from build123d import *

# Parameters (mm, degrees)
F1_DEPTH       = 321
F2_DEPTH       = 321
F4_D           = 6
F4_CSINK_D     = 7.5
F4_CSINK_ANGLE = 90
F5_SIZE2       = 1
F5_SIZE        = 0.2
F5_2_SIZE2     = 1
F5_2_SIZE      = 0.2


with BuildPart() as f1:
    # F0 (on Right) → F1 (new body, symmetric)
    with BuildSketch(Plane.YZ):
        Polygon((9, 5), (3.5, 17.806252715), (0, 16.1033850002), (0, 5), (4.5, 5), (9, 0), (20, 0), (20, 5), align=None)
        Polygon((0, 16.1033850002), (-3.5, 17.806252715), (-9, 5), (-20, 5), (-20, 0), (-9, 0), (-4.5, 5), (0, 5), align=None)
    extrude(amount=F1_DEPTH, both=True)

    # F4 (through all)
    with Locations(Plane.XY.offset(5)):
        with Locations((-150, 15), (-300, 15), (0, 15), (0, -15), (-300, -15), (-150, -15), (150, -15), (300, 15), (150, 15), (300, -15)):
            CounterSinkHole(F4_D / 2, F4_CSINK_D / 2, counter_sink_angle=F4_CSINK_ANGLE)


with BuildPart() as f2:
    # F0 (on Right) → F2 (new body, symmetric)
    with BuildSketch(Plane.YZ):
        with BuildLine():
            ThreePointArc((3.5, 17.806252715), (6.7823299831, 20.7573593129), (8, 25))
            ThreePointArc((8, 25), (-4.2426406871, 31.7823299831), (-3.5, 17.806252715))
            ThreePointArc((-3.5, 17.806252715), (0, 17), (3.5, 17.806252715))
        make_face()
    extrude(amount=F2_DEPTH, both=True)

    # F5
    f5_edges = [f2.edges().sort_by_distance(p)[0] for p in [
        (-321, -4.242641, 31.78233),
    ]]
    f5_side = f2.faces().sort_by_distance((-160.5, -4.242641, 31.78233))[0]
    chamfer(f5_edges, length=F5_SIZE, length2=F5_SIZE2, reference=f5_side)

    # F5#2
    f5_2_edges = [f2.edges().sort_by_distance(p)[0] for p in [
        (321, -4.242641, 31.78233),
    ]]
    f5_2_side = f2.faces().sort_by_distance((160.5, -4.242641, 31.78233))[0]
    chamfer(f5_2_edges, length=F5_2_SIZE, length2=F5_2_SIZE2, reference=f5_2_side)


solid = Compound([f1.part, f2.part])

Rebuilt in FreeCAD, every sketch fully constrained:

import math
import FreeCAD as App
import Part
import Sketcher


def edges_at(feature, points):
    """Names of the edges that pass closest to the given points."""
    edges = feature.Shape.Edges
    near = lambda p: min(range(len(edges)), key=lambda i: edges[i].distToShape(Part.Vertex(*p))[0])
    return sorted({f"Edge{near(p) + 1}" for p in points})

doc = App.newDocument("Part")
params = doc.addObject("Spreadsheet::Sheet", "Params")
for row, (alias, value) in enumerate([
    ("sketch1_width", "11 mm"),
    ("sketch1_width2", "9 mm"),
    ("sketch1_height", "5 mm"),
    ("pad1_length", "642 mm"),
    ("sketch2_diameter", "6 mm"),
    ("hole_diameter", "6 mm"),
    ("hole_csink_diameter", "7.5 mm"),
    ("sketch3_radius", "8 mm"),
    ("pad2_length", "642 mm"),
    ("chamfer_size", "0.2 mm"),
    ("chamfer_size2", "1 mm"),
    ("chamfer2_size", "0.2 mm"),
    ("chamfer2_size2", "1 mm"),
], start=1):
    params.set(f"A{row}", alias)
    params.set(f"B{row}", "=" + value)
    params.setAlias(f"B{row}", alias)

body = doc.addObject("PartDesign::Body", "Body")

# Sketch on YZ plane
sketch1 = doc.addObject("Sketcher::SketchObject", "Sketch")
body.addObject(sketch1)
sketch1.AttachmentSupport = (doc.YZ_Plane, [""])
sketch1.MapMode = "FlatFace"
sketch1.addGeometry([
    Part.LineSegment(App.Vector(9, 5, 0), App.Vector(3.5, 17.8, 0)),  # 0
    Part.LineSegment(App.Vector(3.5, 17.8, 0), App.Vector(0, 16.1, 0)),  # 1
    Part.LineSegment(App.Vector(0, 16.1, 0), App.Vector(-3.5, 17.8, 0)),  # 2
    Part.LineSegment(App.Vector(-3.5, 17.8, 0), App.Vector(-9, 5, 0)),  # 3
    Part.LineSegment(App.Vector(-9, 5, 0), App.Vector(-20, 5, 0)),  # 4
    Part.LineSegment(App.Vector(-20, 5, 0), App.Vector(-20, 0, 0)),  # 5
    Part.LineSegment(App.Vector(-20, 0, 0), App.Vector(-9, 0, 0)),  # 6
    Part.LineSegment(App.Vector(-9, 0, 0), App.Vector(-4.5, 5, 0)),  # 7
    Part.LineSegment(App.Vector(-4.5, 5, 0), App.Vector(4.5, 5, 0)),  # 8
    Part.LineSegment(App.Vector(4.5, 5, 0), App.Vector(9, 0, 0)),  # 9
    Part.LineSegment(App.Vector(9, 0, 0), App.Vector(20, 0, 0)),  # 10
    Part.LineSegment(App.Vector(20, 0, 0), App.Vector(20, 5, 0)),  # 11
    Part.LineSegment(App.Vector(20, 5, 0), App.Vector(9, 5, 0)),  # 12
], False)
sketch1.addConstraint([
    Sketcher.Constraint("Coincident", 0, 2, 1, 1),
    Sketcher.Constraint("Coincident", 1, 2, 2, 1),
    Sketcher.Constraint("Coincident", 2, 2, 3, 1),
    Sketcher.Constraint("Coincident", 3, 2, 4, 1),
    Sketcher.Constraint("Coincident", 4, 2, 5, 1),
    Sketcher.Constraint("Coincident", 5, 2, 6, 1),
    Sketcher.Constraint("Coincident", 6, 2, 7, 1),
    Sketcher.Constraint("Coincident", 7, 2, 8, 1),
    Sketcher.Constraint("Coincident", 8, 2, 9, 1),
    Sketcher.Constraint("Coincident", 9, 2, 10, 1),
    Sketcher.Constraint("Coincident", 10, 2, 11, 1),
    Sketcher.Constraint("Coincident", 11, 2, 12, 1),
    Sketcher.Constraint("Coincident", 12, 2, 0, 1),
    Sketcher.Constraint("Horizontal", 4),
    Sketcher.Constraint("Vertical", 5),
    Sketcher.Constraint("Horizontal", 6),
    Sketcher.Constraint("Horizontal", 8),
    Sketcher.Constraint("Horizontal", 10),
    Sketcher.Constraint("Vertical", 11),
    Sketcher.Constraint("Horizontal", 12),
    Sketcher.Constraint("Symmetric", 6, 2, 9, 2, -1, 1),
    Sketcher.Constraint("Symmetric", 0, 2, 2, 2, -2),
    Sketcher.Constraint("Symmetric", 5, 2, 10, 2, -2),
    Sketcher.Constraint("Symmetric", 3, 2, 12, 2, -2),
    Sketcher.Constraint("PointOnObject", 1, 2, -2),
    Sketcher.Constraint("Horizontal", 4, 2, 7, 2),
    Sketcher.Constraint("Vertical", 3, 2, 6, 2),
    Sketcher.Constraint("Equal", 7, 9),
    Sketcher.Constraint("DistanceX", 4, 2, 4, 1, 11.0),
    Sketcher.Constraint("DistanceX", 8, 1, 8, 2, 9.0),
    Sketcher.Constraint("DistanceY", 5, 2, 5, 1, 5.0),
    Sketcher.Constraint("DistanceX", 3, 2, -1, 1, 9.0),
    Sketcher.Constraint("DistanceX", 2, 2, 0, 2, 7.0),
    Sketcher.Constraint("Distance", 1, 3.892269),
    Sketcher.Constraint("Distance", 0, 13.937364),
])
sketch1.setExpression("Constraints[28]", "Params.sketch1_width")
sketch1.setExpression("Constraints[29]", "Params.sketch1_width2")
sketch1.setExpression("Constraints[30]", "Params.sketch1_height")
pad1 = doc.addObject("PartDesign::Pad", "Pad")
body.addObject(pad1)
pad1.Profile = sketch1
pad1.setExpression("Length", "Params.pad1_length")
pad1.Midplane = True

# Sketch on XY plane
sketch2 = doc.addObject("Sketcher::SketchObject", "Sketch001")
body.addObject(sketch2)
sketch2.AttachmentSupport = (doc.XY_Plane, [""])
sketch2.MapMode = "FlatFace"
sketch2.AttachmentOffset = App.Placement(App.Vector(0, 0, 5), App.Rotation())
sketch2.addGeometry([
    Part.Circle(App.Vector(-150, 15, 0), App.Vector(0, 0, 1), 3),  # 0
    Part.Circle(App.Vector(-300, 15, 0), App.Vector(0, 0, 1), 3),  # 1
    Part.Circle(App.Vector(0, 15, 0), App.Vector(0, 0, 1), 3),  # 2
    Part.Circle(App.Vector(0, -15, 0), App.Vector(0, 0, 1), 3),  # 3
    Part.Circle(App.Vector(-300, -15, 0), App.Vector(0, 0, 1), 3),  # 4
    Part.Circle(App.Vector(-150, -15, 0), App.Vector(0, 0, 1), 3),  # 5
    Part.Circle(App.Vector(150, -15, 0), App.Vector(0, 0, 1), 3),  # 6
    Part.Circle(App.Vector(300, 15, 0), App.Vector(0, 0, 1), 3),  # 7
    Part.Circle(App.Vector(150, 15, 0), App.Vector(0, 0, 1), 3),  # 8
    Part.Circle(App.Vector(300, -15, 0), App.Vector(0, 0, 1), 3),  # 9
], False)
sketch2.addConstraint([
    Sketcher.Constraint("Equal", 0, 1),
    Sketcher.Constraint("Equal", 1, 2),
    Sketcher.Constraint("Equal", 2, 3),
    Sketcher.Constraint("Equal", 3, 4),
    Sketcher.Constraint("Equal", 4, 5),
    Sketcher.Constraint("Equal", 5, 6),
    Sketcher.Constraint("Equal", 6, 7),
    Sketcher.Constraint("Equal", 7, 8),
    Sketcher.Constraint("Equal", 8, 9),
    Sketcher.Constraint("Symmetric", 2, 3, 3, 3, -1, 1),
    Sketcher.Constraint("Symmetric", 0, 3, 6, 3, -1, 1),
    Sketcher.Constraint("Symmetric", 4, 3, 7, 3, -1, 1),
    Sketcher.Constraint("Symmetric", 5, 3, 8, 3, -1, 1),
    Sketcher.Constraint("Symmetric", 1, 3, 9, 3, -1, 1),
    Sketcher.Constraint("Symmetric", 5, 3, 6, 3, -2),
    Sketcher.Constraint("Symmetric", 1, 3, 7, 3, -2),
    Sketcher.Constraint("PointOnObject", 2, 3, -2),
    Sketcher.Constraint("Horizontal", 0, 3, 1, 3),
    Sketcher.Constraint("Horizontal", 1, 3, 2, 3),
    Sketcher.Constraint("Diameter", 0, 6.0),
    Sketcher.Constraint("DistanceX", 0, 3, -1, 1, 150.0),
    Sketcher.Constraint("DistanceY", -1, 1, 0, 3, 15.0),
    Sketcher.Constraint("DistanceX", 1, 3, -1, 1, 300.0),
])
sketch2.setExpression("Constraints[19]", "Params.sketch2_diameter")
doc.recompute()
hole = doc.addObject("PartDesign::Hole", "Hole")
body.addObject(hole)
hole.Profile = sketch2
hole.ThreadType = "None"
hole.setExpression("Diameter", "Params.hole_diameter")
hole.DepthType = "ThroughAll"
hole.HoleCutType = "Countersink"
hole.setExpression("HoleCutDiameter", "Params.hole_csink_diameter")
hole.HoleCutCountersinkAngle = 90
body2 = doc.addObject("PartDesign::Body", "Body001")

# Sketch on YZ plane
sketch3 = doc.addObject("Sketcher::SketchObject", "Sketch002")
body2.addObject(sketch3)
sketch3.AttachmentSupport = (doc.getObject("YZ_Plane001"), [""])
sketch3.MapMode = "FlatFace"
sketch3.addGeometry([
    Part.ArcOfCircle(Part.Circle(App.Vector(0, 25, 0), App.Vector(0, 0, 1), 8), math.radians(-64), math.radians(0)),
    Part.ArcOfCircle(Part.Circle(App.Vector(0, 25, 0), App.Vector(0, 0, 1), 8), math.radians(0), math.radians(244)),
    Part.ArcOfCircle(Part.Circle(App.Vector(0, 25, 0), App.Vector(0, 0, 1), 8), math.radians(-116), math.radians(-64)),
], False)
sketch3.addConstraint([
    Sketcher.Constraint("Tangent", 0, 2, 1, 1),
    Sketcher.Constraint("Tangent", 1, 2, 2, 1),
    Sketcher.Constraint("Tangent", 2, 2, 0, 1),
    Sketcher.Constraint("Symmetric", 1, 2, 2, 2, -2),
    Sketcher.Constraint("Horizontal", 2, 3, 0, 2),
    Sketcher.Constraint("Radius", 0, 8.0),
    Sketcher.Constraint("DistanceY", -1, 1, 0, 3, 25.0),
    Sketcher.Constraint("DistanceX", 1, 2, 2, 2, 7.0),
])
sketch3.setExpression("Constraints[5]", "Params.sketch3_radius")
pad2 = doc.addObject("PartDesign::Pad", "Pad001")
body2.addObject(pad2)
pad2.Profile = sketch3
pad2.setExpression("Length", "Params.pad2_length")
pad2.Midplane = True
doc.recompute()

chamfer = doc.addObject("PartDesign::Chamfer", "Chamfer")
body2.addObject(chamfer)
chamfer.Base = (pad2, edges_at(pad2, [(-321, -4.243, 31.782)]))
chamfer.ChamferType = "Two distances"
chamfer.setExpression("Size", "Params.chamfer_size")
chamfer.setExpression("Size2", "Params.chamfer_size2")
doc.recompute()

chamfer2 = doc.addObject("PartDesign::Chamfer", "Chamfer001")
body2.addObject(chamfer2)
chamfer2.Base = (chamfer, edges_at(chamfer, [(321, -4.243, 31.782)]))
chamfer2.ChamferType = "Two distances"
chamfer2.setExpression("Size", "Params.chamfer2_size")
chamfer2.setExpression("Size2", "Params.chamfer2_size2")

doc.recompute()
